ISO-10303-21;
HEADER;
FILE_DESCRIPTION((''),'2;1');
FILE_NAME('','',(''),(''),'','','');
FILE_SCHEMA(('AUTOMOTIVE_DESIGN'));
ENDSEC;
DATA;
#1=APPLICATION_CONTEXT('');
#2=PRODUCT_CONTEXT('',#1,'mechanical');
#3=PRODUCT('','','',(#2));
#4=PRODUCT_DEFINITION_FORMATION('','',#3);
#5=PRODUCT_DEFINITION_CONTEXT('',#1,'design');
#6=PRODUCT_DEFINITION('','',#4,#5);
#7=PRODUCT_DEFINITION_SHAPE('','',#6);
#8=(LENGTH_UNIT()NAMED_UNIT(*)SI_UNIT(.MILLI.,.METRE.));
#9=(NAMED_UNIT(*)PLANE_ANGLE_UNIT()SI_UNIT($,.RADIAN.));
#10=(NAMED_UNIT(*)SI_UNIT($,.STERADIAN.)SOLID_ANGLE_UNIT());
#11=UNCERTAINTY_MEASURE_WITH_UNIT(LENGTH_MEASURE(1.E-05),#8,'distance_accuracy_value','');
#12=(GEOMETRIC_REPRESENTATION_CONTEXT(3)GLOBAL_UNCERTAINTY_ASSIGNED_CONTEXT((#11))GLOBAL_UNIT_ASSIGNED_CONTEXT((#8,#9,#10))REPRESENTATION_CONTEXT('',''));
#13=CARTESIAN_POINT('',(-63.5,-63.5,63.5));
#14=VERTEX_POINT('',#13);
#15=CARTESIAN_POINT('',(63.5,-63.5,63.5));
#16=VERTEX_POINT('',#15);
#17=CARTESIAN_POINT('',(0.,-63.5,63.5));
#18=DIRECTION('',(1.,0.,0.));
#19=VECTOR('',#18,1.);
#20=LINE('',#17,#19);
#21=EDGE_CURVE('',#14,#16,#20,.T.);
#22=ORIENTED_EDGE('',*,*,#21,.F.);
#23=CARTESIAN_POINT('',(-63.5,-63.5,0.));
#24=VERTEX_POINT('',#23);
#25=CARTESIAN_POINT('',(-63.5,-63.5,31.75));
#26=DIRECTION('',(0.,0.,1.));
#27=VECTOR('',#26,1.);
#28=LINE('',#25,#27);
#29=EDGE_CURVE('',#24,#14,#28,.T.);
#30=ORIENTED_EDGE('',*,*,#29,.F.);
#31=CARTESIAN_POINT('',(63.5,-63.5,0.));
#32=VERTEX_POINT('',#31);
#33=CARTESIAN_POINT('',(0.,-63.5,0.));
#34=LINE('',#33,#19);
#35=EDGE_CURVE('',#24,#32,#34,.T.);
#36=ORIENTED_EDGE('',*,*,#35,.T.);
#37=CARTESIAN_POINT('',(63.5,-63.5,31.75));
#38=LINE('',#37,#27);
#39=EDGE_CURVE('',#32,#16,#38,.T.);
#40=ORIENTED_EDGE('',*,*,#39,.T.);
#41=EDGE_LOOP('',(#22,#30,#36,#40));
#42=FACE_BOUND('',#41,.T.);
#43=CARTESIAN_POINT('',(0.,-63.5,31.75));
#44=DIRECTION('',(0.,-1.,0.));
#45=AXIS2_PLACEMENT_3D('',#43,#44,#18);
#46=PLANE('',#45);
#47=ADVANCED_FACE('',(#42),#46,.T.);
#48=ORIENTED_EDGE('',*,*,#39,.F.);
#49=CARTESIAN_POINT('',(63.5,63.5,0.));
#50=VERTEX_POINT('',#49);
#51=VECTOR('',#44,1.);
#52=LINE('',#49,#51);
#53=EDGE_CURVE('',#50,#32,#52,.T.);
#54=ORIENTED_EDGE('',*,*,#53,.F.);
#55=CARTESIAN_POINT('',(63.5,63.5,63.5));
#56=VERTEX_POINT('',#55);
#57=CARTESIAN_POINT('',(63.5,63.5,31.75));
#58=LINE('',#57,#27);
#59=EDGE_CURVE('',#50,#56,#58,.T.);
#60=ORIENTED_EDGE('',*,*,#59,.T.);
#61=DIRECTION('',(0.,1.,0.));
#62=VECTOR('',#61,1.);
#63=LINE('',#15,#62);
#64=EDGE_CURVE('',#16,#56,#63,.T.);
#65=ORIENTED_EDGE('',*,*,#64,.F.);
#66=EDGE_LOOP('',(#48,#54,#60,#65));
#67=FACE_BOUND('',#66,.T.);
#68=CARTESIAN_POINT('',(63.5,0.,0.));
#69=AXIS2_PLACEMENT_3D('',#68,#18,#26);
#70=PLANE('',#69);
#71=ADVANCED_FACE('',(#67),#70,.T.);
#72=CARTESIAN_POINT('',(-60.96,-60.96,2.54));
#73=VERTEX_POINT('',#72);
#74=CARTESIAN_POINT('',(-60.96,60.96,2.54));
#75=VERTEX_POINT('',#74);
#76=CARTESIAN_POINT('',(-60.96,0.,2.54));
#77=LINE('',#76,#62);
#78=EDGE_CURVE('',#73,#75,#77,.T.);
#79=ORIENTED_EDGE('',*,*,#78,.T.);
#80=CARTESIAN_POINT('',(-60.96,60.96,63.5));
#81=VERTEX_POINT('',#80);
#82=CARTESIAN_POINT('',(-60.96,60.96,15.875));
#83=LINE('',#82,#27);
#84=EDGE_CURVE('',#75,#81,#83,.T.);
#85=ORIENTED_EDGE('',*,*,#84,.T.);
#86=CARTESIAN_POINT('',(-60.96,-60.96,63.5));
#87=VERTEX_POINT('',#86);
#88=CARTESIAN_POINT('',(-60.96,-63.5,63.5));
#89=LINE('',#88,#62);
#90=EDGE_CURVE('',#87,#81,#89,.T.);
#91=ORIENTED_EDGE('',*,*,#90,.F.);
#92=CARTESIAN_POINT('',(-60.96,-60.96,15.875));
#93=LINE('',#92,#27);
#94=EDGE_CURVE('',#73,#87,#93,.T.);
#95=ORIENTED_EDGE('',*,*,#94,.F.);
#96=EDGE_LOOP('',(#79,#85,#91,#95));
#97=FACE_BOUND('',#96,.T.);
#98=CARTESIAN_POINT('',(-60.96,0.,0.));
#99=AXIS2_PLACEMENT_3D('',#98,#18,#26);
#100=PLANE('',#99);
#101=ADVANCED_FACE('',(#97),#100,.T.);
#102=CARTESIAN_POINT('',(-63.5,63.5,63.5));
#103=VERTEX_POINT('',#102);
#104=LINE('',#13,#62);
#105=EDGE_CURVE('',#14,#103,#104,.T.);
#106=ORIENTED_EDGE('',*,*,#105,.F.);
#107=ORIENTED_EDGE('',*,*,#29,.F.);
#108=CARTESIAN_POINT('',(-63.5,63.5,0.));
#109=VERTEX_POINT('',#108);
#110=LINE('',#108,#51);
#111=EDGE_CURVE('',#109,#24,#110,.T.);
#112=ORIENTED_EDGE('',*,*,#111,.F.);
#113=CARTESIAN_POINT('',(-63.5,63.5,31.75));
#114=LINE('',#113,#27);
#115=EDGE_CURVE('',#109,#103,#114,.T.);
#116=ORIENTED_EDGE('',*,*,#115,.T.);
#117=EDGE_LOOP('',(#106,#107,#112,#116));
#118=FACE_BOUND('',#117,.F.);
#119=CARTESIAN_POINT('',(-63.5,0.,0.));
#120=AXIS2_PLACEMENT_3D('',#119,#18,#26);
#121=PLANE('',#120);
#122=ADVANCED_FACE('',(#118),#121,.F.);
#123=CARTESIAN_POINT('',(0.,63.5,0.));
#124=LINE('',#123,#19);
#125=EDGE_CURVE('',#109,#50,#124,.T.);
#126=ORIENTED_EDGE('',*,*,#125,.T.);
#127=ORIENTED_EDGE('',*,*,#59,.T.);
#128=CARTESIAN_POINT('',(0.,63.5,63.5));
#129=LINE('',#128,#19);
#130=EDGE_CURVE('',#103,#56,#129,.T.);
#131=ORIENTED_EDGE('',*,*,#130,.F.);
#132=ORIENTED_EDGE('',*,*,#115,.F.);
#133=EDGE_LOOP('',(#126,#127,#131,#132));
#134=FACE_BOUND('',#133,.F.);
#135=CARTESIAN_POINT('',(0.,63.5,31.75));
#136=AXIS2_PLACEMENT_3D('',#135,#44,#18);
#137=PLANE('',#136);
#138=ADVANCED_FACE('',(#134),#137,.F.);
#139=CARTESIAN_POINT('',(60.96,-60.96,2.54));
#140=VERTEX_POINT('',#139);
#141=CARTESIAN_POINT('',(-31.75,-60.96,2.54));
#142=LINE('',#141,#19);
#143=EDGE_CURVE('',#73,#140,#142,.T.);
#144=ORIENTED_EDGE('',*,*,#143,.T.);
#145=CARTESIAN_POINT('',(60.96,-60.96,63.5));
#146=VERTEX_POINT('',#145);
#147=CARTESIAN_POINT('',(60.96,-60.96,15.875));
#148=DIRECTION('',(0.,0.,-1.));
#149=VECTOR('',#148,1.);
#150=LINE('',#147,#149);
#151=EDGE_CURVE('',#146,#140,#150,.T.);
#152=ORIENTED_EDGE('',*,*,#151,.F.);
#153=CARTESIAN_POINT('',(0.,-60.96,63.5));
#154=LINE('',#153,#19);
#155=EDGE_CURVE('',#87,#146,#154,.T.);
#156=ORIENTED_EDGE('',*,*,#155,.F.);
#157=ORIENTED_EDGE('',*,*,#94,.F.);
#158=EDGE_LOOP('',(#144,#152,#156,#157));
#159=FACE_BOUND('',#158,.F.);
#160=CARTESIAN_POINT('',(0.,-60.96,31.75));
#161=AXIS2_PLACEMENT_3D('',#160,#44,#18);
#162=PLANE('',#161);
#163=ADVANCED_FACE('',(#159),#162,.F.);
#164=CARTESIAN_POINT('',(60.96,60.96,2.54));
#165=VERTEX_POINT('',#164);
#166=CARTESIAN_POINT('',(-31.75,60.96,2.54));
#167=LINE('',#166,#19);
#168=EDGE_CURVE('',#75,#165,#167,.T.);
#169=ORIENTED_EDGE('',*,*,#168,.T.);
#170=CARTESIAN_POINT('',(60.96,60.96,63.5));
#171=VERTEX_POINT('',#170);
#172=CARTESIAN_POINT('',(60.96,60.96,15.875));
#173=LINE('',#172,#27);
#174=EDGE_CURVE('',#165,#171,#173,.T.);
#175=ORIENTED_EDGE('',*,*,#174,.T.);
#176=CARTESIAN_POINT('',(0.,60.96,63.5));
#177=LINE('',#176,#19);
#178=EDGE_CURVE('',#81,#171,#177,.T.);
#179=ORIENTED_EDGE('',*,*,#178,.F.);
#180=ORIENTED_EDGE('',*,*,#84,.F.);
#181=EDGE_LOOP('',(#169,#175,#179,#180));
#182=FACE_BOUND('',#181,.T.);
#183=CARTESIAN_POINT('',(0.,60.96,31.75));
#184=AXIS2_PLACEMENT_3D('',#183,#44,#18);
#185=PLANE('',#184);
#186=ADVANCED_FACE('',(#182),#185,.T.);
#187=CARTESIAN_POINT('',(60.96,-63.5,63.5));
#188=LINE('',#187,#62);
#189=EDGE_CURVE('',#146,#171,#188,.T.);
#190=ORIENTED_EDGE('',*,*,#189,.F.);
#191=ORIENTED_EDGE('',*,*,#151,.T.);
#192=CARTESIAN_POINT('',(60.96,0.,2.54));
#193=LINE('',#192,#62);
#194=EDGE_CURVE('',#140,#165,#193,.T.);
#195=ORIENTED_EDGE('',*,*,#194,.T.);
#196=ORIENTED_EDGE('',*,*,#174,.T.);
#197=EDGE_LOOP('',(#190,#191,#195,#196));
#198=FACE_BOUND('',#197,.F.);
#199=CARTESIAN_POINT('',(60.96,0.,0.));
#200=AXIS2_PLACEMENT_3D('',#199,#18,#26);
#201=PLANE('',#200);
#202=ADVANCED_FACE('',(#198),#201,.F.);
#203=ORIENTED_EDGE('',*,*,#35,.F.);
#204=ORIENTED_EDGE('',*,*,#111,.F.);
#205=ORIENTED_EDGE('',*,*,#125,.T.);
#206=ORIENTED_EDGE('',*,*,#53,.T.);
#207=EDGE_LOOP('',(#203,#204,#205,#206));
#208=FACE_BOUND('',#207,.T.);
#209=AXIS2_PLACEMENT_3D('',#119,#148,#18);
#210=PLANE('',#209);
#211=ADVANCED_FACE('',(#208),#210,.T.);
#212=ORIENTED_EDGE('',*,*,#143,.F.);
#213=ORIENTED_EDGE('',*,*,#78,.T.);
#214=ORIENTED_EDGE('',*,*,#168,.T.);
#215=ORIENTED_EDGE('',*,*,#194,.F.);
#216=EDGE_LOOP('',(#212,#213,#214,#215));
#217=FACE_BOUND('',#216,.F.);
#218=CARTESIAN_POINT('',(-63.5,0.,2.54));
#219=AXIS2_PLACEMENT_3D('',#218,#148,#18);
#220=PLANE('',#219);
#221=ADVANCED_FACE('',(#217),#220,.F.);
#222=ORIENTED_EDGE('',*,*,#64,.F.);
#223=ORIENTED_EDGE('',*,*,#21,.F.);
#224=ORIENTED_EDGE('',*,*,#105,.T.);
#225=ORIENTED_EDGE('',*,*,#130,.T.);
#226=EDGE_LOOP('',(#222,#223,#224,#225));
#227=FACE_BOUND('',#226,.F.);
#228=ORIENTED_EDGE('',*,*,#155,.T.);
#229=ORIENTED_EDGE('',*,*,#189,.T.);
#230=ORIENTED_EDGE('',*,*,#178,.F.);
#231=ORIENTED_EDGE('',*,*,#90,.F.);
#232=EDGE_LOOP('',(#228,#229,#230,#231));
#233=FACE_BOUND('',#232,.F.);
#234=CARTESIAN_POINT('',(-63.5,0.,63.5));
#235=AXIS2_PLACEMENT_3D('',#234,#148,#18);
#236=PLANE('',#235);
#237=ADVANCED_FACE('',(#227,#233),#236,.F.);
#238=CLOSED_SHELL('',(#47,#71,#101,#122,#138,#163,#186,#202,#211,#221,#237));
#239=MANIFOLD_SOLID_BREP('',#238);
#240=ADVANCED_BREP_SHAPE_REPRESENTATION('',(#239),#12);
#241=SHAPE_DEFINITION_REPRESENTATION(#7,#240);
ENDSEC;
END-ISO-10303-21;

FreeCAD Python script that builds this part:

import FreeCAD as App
import Part
import Sketcher
Q = App.Units.Quantity


def faces_at(feature, points):
    """Names of the faces that lie closest to the given points."""
    faces = feature.Shape.Faces
    near = lambda p: min(range(len(faces)), key=lambda i: faces[i].distToShape(Part.Vertex(*p))[0])
    return sorted({f"Face{near(p) + 1}" for p in points})

doc = App.newDocument("Part")
params = doc.addObject("Spreadsheet::Sheet", "Params")
for row, (alias, value) in enumerate([
    ("sketch1_width", "5 in"),
    ("sketch1_height", "2.5 in"),
    ("pad1_length", "2.5 in"),
    ("pad1_length2", "2.5 in"),
    ("thickness_wall", "0.1 in"),
], start=1):
    params.set(f"A{row}", alias)
    params.set(f"B{row}", "=" + value)
    params.setAlias(f"B{row}", alias)

body = doc.addObject("PartDesign::Body", "Body")

# Sketch on XZ plane
sketch1 = doc.addObject("Sketcher::SketchObject", "Sketch")
body.addObject(sketch1)
sketch1.AttachmentSupport = (doc.XZ_Plane, [""])
sketch1.MapMode = "FlatFace"
sketch1.addGeometry(Part.LineSegment(App.Vector(-64, 64, 0), App.Vector(-64, 0, 0)), False)
sketch1.addGeometry(Part.LineSegment(App.Vector(-64, 0, 0), App.Vector(64, 0, 0)), False)
sketch1.addGeometry(Part.LineSegment(App.Vector(64, 0, 0), App.Vector(64, 64, 0)), False)
sketch1.addGeometry(Part.LineSegment(App.Vector(64, 64, 0), App.Vector(-64, 64, 0)), False)
sketch1.addConstraint(Sketcher.Constraint("Coincident", 0, 2, 1, 1))
sketch1.addConstraint(Sketcher.Constraint("Coincident", 1, 2, 2, 1))
sketch1.addConstraint(Sketcher.Constraint("Coincident", 2, 2, 3, 1))
sketch1.addConstraint(Sketcher.Constraint("Coincident", 3, 2, 0, 1))
sketch1.addConstraint(Sketcher.Constraint("Vertical", 0))
sketch1.addConstraint(Sketcher.Constraint("Horizontal", 1))
sketch1.addConstraint(Sketcher.Constraint("Vertical", 2))
sketch1.addConstraint(Sketcher.Constraint("Horizontal", 3))
sketch1.addConstraint(Sketcher.Constraint("Symmetric", 0, 2, 1, 2, -1, 1))
sketch1.addConstraint(Sketcher.Constraint("DistanceX", 1, 1, 1, 2, Q("5 in")))
sketch1.addConstraint(Sketcher.Constraint("DistanceY", 0, 2, 0, 1, Q("2.5 in")))
sketch1.setExpression("Constraints[9]", "Params.sketch1_width")
sketch1.setExpression("Constraints[10]", "Params.sketch1_height")
pad1 = doc.addObject("PartDesign::Pad", "Pad")
body.addObject(pad1)
pad1.Profile = sketch1
pad1.Type = "TwoLengths"
pad1.setExpression("Length", "Params.pad1_length")
pad1.setExpression("Length2", "Params.pad1_length2")
doc.recompute()

thickness = doc.addObject("PartDesign::Thickness", "Thickness")
body.addObject(thickness)
thickness.Base = (pad1, faces_at(pad1, [(0, 0, 63.5)]))
thickness.setExpression("Value", "Params.thickness_wall")
thickness.Reversed = True
thickness.Join = "Arc"

doc.recompute()
